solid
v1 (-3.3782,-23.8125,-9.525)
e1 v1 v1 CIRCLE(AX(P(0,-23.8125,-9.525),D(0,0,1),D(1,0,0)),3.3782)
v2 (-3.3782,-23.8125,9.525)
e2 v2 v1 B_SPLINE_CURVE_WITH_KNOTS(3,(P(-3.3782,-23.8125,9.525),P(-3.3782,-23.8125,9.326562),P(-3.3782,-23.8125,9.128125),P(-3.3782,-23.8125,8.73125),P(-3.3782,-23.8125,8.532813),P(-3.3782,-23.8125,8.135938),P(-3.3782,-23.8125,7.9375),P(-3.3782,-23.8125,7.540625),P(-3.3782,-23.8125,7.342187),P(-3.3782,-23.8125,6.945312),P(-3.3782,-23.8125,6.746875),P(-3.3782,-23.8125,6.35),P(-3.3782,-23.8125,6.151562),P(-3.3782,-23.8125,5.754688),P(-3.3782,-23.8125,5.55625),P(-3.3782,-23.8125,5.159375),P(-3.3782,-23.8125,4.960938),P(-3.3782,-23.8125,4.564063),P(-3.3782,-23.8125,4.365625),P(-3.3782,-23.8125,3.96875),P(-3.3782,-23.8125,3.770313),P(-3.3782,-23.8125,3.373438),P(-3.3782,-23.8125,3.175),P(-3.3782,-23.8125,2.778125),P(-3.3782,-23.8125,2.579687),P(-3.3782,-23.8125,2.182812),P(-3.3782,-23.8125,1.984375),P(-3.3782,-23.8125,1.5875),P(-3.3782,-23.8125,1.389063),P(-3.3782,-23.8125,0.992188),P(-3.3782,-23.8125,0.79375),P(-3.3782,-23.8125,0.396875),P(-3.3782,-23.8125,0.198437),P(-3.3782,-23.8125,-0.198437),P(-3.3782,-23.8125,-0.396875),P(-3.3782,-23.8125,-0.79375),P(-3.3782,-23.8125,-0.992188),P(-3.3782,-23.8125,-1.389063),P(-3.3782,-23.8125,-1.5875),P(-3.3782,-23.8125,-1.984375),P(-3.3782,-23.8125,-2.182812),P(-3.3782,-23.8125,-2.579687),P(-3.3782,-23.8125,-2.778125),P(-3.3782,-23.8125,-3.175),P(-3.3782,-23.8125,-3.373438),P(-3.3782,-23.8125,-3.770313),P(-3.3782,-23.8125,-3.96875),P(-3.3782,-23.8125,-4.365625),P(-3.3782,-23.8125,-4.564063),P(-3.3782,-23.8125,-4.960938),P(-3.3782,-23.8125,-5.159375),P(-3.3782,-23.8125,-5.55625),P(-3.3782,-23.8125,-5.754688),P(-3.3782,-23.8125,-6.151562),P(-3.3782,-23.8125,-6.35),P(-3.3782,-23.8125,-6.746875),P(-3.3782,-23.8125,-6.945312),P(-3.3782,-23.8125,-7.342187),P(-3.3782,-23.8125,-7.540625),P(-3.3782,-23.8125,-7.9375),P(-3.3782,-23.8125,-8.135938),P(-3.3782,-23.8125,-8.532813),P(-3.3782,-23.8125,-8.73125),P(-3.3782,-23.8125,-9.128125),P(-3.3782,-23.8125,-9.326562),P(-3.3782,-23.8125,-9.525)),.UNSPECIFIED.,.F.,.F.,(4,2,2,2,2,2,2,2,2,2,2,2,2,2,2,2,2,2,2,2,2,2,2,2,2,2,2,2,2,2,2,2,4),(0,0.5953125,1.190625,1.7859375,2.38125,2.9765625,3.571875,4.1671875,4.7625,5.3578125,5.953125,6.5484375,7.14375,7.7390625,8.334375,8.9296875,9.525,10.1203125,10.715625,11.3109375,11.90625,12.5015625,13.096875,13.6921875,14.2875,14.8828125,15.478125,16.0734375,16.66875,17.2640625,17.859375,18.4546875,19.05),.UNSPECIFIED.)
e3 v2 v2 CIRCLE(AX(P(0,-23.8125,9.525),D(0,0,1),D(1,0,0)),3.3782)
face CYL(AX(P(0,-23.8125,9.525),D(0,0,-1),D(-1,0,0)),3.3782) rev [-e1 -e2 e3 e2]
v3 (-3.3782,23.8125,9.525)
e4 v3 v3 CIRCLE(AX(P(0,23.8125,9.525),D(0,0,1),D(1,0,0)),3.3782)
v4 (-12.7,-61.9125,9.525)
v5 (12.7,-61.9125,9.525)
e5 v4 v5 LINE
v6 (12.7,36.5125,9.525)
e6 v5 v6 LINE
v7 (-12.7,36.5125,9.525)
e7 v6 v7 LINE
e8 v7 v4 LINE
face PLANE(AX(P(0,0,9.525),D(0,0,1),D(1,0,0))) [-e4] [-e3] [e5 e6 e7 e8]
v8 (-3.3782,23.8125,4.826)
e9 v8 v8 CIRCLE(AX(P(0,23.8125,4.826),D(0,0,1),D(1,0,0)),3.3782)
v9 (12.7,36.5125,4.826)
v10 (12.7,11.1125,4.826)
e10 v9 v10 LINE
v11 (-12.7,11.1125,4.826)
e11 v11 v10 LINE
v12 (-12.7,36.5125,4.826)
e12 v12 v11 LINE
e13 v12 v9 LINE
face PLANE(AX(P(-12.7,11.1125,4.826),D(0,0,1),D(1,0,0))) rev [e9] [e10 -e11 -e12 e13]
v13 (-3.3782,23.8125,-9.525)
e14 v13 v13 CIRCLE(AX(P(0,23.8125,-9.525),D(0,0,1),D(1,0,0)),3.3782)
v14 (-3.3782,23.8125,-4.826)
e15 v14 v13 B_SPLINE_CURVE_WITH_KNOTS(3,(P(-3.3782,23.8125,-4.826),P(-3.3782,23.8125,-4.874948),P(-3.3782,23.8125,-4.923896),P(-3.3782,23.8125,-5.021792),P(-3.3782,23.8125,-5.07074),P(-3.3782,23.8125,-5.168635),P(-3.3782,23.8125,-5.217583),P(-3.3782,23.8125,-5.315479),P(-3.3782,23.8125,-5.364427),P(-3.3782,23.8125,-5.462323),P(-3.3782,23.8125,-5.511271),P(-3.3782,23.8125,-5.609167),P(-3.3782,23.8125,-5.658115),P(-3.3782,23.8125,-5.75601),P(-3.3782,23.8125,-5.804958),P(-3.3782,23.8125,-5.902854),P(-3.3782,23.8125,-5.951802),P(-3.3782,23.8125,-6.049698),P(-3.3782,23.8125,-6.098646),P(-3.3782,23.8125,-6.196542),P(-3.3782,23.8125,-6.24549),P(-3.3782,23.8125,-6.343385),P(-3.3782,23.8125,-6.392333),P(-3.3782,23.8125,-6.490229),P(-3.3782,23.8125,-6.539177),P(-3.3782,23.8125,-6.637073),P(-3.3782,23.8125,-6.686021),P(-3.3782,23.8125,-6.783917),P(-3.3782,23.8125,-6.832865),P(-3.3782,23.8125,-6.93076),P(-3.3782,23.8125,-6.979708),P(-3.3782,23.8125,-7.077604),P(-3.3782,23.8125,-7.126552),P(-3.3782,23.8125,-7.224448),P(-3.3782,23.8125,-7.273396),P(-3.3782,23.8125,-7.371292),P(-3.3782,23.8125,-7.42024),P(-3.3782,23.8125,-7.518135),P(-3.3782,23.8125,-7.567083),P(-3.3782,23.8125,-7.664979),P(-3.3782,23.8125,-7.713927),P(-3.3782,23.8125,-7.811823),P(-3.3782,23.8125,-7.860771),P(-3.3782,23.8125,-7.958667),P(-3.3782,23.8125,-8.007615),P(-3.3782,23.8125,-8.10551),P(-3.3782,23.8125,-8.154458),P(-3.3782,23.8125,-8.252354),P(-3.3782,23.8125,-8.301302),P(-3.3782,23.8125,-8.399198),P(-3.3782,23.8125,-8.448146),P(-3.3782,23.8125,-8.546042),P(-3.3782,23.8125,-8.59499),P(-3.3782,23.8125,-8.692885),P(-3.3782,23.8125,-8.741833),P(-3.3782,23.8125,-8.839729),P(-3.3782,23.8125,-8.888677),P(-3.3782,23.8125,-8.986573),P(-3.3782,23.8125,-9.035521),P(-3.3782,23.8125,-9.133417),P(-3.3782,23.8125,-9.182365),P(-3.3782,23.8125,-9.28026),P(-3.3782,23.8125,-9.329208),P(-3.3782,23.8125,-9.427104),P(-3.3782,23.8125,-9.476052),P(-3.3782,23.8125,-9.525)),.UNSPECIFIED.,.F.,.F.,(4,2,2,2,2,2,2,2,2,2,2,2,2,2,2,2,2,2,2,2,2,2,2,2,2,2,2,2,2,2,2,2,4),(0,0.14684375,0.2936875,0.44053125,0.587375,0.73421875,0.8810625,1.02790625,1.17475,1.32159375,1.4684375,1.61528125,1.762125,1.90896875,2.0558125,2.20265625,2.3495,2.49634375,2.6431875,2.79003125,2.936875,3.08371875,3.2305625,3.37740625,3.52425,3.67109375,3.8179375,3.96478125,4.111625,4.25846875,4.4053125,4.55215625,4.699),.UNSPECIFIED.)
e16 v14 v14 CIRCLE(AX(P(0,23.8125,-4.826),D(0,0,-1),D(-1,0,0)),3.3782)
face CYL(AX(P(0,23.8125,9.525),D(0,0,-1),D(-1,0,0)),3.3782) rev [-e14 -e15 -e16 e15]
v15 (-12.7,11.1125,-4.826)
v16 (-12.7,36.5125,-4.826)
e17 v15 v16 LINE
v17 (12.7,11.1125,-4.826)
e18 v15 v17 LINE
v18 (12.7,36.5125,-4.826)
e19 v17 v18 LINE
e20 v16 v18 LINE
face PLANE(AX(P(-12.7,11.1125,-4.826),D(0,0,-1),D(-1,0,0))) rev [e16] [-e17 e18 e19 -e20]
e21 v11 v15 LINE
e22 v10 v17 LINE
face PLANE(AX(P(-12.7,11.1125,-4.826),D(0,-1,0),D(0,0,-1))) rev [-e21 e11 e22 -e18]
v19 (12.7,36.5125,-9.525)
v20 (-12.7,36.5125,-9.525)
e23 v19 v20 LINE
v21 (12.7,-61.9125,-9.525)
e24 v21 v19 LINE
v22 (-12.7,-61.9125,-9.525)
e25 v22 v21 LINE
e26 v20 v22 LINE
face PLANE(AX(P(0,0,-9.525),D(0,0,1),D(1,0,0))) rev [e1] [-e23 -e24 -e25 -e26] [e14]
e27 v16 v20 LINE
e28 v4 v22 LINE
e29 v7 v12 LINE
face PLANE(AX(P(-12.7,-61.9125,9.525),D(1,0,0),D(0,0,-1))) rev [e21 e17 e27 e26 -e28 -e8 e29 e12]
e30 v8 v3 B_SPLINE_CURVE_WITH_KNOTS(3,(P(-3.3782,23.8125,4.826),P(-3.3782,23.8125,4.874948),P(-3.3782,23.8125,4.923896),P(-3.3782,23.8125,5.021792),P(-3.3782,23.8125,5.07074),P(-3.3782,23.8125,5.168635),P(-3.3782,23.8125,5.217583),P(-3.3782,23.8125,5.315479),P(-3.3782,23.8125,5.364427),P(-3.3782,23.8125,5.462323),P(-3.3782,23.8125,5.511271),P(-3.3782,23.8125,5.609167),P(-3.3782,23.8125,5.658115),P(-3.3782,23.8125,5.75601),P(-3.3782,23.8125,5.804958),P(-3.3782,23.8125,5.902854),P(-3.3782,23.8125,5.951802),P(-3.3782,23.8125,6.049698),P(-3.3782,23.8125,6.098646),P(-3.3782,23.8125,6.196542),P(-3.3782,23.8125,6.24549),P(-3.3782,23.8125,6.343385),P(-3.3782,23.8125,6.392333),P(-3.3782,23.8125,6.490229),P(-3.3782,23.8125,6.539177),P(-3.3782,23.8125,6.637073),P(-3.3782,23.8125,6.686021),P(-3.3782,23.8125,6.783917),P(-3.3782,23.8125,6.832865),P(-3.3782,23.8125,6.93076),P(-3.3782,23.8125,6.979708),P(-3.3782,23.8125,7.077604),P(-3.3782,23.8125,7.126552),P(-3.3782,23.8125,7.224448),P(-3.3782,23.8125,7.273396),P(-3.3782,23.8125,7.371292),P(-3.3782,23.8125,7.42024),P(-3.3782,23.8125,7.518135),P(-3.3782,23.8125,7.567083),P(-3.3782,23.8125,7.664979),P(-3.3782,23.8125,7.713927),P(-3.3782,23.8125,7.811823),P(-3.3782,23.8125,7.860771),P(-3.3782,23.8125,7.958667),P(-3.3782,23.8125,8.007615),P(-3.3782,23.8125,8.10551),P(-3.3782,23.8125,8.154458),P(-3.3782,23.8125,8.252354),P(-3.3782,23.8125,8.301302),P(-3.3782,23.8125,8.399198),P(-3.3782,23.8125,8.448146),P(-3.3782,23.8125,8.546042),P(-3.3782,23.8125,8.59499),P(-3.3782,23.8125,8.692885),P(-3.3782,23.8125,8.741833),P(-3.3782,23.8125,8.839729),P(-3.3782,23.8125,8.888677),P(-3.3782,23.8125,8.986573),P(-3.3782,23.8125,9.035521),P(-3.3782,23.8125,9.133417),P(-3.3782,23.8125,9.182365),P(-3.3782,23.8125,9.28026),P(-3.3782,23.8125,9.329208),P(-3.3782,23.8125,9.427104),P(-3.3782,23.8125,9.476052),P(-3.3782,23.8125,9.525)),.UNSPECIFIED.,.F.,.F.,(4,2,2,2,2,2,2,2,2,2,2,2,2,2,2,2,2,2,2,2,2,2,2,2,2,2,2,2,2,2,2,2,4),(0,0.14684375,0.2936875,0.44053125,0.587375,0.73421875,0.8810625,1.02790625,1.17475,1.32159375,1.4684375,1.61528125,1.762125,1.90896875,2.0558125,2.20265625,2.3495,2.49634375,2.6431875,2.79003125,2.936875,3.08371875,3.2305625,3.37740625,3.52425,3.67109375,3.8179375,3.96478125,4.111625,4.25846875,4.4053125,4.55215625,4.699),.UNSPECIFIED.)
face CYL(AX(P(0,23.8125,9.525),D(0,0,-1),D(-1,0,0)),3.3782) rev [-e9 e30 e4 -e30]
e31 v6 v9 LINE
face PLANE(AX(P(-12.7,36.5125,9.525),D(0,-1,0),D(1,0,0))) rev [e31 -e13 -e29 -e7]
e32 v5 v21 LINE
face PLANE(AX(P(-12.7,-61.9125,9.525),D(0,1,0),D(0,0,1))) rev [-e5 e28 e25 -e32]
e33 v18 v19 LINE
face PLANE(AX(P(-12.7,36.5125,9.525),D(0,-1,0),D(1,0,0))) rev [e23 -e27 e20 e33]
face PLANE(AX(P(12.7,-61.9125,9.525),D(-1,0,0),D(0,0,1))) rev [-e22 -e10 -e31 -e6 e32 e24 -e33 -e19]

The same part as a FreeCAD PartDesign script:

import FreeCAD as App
import Part
import Sketcher
Q = App.Units.Quantity

doc = App.newDocument("Part")
params = doc.addObject("Spreadsheet::Sheet", "Params")
for row, (alias, value) in enumerate([
    ("sketch1_width", "1 in"),
    ("sketch1_diameter", "0.266 in"),
    ("sketch1_height", "3.875 in"),
    ("pad1_length", "0.75 in"),
    ("sketch2_width", "1 in"),
    ("sketch2_height", "0.38 in"),
], start=1):
    params.set(f"A{row}", alias)
    params.set(f"B{row}", "=" + value)
    params.setAlias(f"B{row}", alias)

body = doc.addObject("PartDesign::Body", "Body")

# Sketch on XY plane
sketch1 = body.newObject("Sketcher::SketchObject", "Sketch")
sketch1.AttachmentSupport = (doc.getObject("XY_Plane"), [""])
sketch1.MapMode = "FlatFace"
sketch1.addGeometry(Part.LineSegment(App.Vector(-12.7, 36.5, 0), App.Vector(-12.7, -61.9, 0)), False)
sketch1.addGeometry(Part.LineSegment(App.Vector(-12.7, -61.9, 0), App.Vector(12.7, -61.9, 0)), False)
sketch1.addGeometry(Part.LineSegment(App.Vector(12.7, -61.9, 0), App.Vector(12.7, 36.5, 0)), False)
sketch1.addGeometry(Part.LineSegment(App.Vector(12.7, 36.5, 0), App.Vector(-12.7, 36.5, 0)), False)
sketch1.addGeometry(Part.Circle(App.Vector(0, -23.8, 0), App.Vector(0, 0, 1), 3.4), False)
sketch1.addGeometry(Part.Circle(App.Vector(0, 23.8, 0), App.Vector(0, 0, 1), 3.4), False)
sketch1.addConstraint(Sketcher.Constraint("Coincident", 0, 2, 1, 1))
sketch1.addConstraint(Sketcher.Constraint("Coincident", 1, 2, 2, 1))
sketch1.addConstraint(Sketcher.Constraint("Coincident", 2, 2, 3, 1))
sketch1.addConstraint(Sketcher.Constraint("Coincident", 3, 2, 0, 1))
sketch1.addConstraint(Sketcher.Constraint("Vertical", 0))
sketch1.addConstraint(Sketcher.Constraint("Horizontal", 1))
sketch1.addConstraint(Sketcher.Constraint("Vertical", 2))
sketch1.addConstraint(Sketcher.Constraint("Horizontal", 3))
sketch1.addConstraint(Sketcher.Constraint("Equal", 4, 5))
sketch1.addConstraint(Sketcher.Constraint("Symmetric", 4, 3, 5, 3, -1, 1))
sketch1.addConstraint(Sketcher.Constraint("PointOnObject", 4, 3, -2))
sketch1.addConstraint(Sketcher.Constraint("DistanceX", 1, 1, 1, 2, Q("1 in")))
sketch1.addConstraint(Sketcher.Constraint("Diameter", 4, Q("0.266 in")))
sketch1.addConstraint(Sketcher.Constraint("DistanceX", 0, 2, -1, 1, Q("0.5 in")))
sketch1.addConstraint(Sketcher.Constraint("DistanceY", 0, 2, 4, 3, Q("1.5 in")))
sketch1.addConstraint(Sketcher.Constraint("DistanceY", 5, 3, 2, 2, Q("0.5 in")))
sketch1.addConstraint(Sketcher.Constraint("DistanceY", 0, 2, 0, 1, Q("3.875 in")))
sketch1.setExpression("Constraints[11]", "Params.sketch1_width")
sketch1.setExpression("Constraints[12]", "Params.sketch1_diameter")
sketch1.setExpression("Constraints[16]", "Params.sketch1_height")
pad1 = body.newObject("PartDesign::Pad", "Pad")
pad1.Profile = sketch1
pad1.setExpression("Length", "Params.pad1_length")
pad1.Midplane = True

# Sketch on YZ plane
sketch2 = body.newObject("Sketcher::SketchObject", "Sketch001")
sketch2.AttachmentSupport = (doc.getObject("YZ_Plane"), [""])
sketch2.MapMode = "FlatFace"
sketch2.AttachmentOffset = App.Placement(App.Vector(0, 0, 0.5 * 25.4), App.Rotation())
sketch2.addGeometry(Part.LineSegment(App.Vector(37, 5, 0), App.Vector(11, 5, 0)), False)
sketch2.addGeometry(Part.LineSegment(App.Vector(11, 5, 0), App.Vector(11, -5, 0)), False)
sketch2.addGeometry(Part.LineSegment(App.Vector(11, -5, 0), App.Vector(37, -5, 0)), False)
sketch2.addGeometry(Part.LineSegment(App.Vector(37, -5, 0), App.Vector(37, 5, 0)), False)
sketch2.addConstraint(Sketcher.Constraint("Coincident", 0, 2, 1, 1))
sketch2.addConstraint(Sketcher.Constraint("Coincident", 1, 2, 2, 1))
sketch2.addConstraint(Sketcher.Constraint("Coincident", 2, 2, 3, 1))
sketch2.addConstraint(Sketcher.Constraint("Coincident", 3, 2, 0, 1))
sketch2.addConstraint(Sketcher.Constraint("Horizontal", 0))
sketch2.addConstraint(Sketcher.Constraint("Vertical", 1))
sketch2.addConstraint(Sketcher.Constraint("Horizontal", 2))
sketch2.addConstraint(Sketcher.Constraint("Vertical", 3))
sketch2.addConstraint(Sketcher.Constraint("DistanceX", 0, 2, 0, 1, Q("1 in")))
sketch2.addConstraint(Sketcher.Constraint("DistanceY", 1, 2, 1, 1, Q("0.38 in")))
sketch2.addConstraint(Sketcher.Constraint("DistanceY", -1, 1, 0, 2, Q("0.19 in")))
sketch2.addConstraint(Sketcher.Constraint("DistanceX", -1, 1, 0, 2, Q("0.4375 in")))
sketch2.setExpression("Constraints[8]", "Params.sketch2_width")
sketch2.setExpression("Constraints[9]", "Params.sketch2_height")
pocket1 = body.newObject("PartDesign::Pocket", "Pocket")
pocket1.Profile = sketch2
pocket1.Type = "ThroughAll"

doc.recompute()
